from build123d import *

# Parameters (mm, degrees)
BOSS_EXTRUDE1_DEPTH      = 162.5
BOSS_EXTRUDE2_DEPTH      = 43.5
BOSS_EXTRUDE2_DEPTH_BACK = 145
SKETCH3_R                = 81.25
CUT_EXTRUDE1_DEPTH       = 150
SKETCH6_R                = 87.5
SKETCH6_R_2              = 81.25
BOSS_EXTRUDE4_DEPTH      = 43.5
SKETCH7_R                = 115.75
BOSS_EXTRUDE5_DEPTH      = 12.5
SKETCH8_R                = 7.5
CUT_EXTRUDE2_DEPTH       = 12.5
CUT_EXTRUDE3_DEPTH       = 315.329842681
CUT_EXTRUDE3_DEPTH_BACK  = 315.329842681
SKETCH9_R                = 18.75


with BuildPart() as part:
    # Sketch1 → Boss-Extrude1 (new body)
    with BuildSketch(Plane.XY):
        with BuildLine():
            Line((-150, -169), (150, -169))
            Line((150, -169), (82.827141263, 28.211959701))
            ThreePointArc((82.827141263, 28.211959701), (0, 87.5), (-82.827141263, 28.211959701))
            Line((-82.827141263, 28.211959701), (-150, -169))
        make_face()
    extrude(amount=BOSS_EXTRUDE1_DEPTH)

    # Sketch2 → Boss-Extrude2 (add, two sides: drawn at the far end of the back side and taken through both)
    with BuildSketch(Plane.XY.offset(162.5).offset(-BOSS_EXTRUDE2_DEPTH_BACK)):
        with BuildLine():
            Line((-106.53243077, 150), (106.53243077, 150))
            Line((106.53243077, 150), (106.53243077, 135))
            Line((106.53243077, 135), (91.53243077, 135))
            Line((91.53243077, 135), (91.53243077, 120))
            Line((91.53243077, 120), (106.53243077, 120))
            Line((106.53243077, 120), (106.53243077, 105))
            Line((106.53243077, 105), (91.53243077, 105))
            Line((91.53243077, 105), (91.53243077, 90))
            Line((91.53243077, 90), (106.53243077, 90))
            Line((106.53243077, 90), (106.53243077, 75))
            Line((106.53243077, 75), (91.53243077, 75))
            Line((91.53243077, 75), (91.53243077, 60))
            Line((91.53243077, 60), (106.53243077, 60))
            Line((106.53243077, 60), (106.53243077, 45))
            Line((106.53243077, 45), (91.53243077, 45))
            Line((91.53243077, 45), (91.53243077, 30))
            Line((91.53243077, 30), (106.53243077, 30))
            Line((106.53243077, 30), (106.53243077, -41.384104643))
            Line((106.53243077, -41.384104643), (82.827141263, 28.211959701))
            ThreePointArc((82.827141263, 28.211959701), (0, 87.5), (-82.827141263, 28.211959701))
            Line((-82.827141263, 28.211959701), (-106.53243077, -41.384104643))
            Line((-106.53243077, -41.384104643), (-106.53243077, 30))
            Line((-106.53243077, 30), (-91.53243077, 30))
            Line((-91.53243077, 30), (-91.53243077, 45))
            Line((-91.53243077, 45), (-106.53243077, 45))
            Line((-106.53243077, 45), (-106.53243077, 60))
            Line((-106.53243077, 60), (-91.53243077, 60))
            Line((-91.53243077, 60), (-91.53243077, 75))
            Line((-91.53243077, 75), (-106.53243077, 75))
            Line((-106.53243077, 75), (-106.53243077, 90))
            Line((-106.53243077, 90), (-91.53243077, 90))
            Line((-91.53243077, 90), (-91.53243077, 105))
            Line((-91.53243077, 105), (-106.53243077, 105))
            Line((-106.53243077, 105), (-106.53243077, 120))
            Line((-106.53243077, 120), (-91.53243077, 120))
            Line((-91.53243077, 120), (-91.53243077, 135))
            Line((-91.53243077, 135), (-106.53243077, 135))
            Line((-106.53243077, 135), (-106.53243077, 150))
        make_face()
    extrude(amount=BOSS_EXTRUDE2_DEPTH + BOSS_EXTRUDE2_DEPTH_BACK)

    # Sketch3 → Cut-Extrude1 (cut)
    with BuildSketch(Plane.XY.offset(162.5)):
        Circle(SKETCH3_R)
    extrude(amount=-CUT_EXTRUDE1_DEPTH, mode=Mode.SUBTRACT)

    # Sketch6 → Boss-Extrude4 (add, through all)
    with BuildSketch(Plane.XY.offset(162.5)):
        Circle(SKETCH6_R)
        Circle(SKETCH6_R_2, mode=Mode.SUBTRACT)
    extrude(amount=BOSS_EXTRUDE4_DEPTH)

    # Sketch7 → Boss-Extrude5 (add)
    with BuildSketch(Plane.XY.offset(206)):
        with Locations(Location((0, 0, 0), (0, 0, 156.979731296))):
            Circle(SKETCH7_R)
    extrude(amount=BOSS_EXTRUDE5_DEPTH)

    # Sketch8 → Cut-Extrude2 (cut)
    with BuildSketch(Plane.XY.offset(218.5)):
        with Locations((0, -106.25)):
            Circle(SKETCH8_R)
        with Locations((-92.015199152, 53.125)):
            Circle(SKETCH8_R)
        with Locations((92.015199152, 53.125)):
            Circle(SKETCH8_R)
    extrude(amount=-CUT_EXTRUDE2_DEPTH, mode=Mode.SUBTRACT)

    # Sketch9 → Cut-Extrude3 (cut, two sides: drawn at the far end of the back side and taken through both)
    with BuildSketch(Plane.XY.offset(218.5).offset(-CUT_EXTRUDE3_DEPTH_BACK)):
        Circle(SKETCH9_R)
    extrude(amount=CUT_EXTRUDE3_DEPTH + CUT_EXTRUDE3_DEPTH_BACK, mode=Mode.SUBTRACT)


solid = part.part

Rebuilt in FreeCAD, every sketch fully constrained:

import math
import FreeCAD as App
import Part
import Sketcher

doc = App.newDocument("Part")
params = doc.addObject("Spreadsheet::Sheet", "Params")
for row, (alias, value) in enumerate([
    ("sketch1_radius", "87.5 mm"),
    ("sketch1_width", "300 mm"),
    ("pad1_length", "162.5 mm"),
    ("sketch2_radius", "87.5 mm"),
    ("sketch2_width", "15 mm"),
    ("pad2_length", "43.5 mm"),
    ("pad2_length2", "145 mm"),
    ("sketch3_diameter", "162.5 mm"),
    ("pocket1_length", "150 mm"),
    ("sketch4_diameter", "175 mm"),
    ("sketch4_diameter2", "162.5 mm"),
    ("pad3_length", "43.5 mm"),
    ("sketch5_diameter", "231.5 mm"),
    ("pad4_length", "12.5 mm"),
    ("sketch6_diameter", "15 mm"),
    ("pocket2_length", "12.5 mm"),
    ("sketch7_diameter", "37.5 mm"),
], start=1):
    params.set(f"A{row}", alias)
    params.set(f"B{row}", "=" + value)
    params.setAlias(f"B{row}", alias)

body = doc.addObject("PartDesign::Body", "Body")

# Sketch on XY plane
sketch1 = body.newObject("Sketcher::SketchObject", "Sketch")
sketch1.AttachmentSupport = (doc.getObject("XY_Plane"), [""])
sketch1.MapMode = "FlatFace"
sketch1.addGeometry([
    Part.LineSegment(App.Vector(-150, -169, 0), App.Vector(150, -169, 0)),
    Part.LineSegment(App.Vector(150, -169, 0), App.Vector(83, 28, 0)),
    Part.ArcOfCircle(Part.Circle(App.Vector(0, 0, 0), App.Vector(0, 0, 1), 88), math.radians(19), math.radians(161)),
    Part.LineSegment(App.Vector(-83, 28, 0), App.Vector(-150, -169, 0)),
], False)
sketch1.addConstraint([
    Sketcher.Constraint("Coincident", 0, 2, 1, 1),
    Sketcher.Constraint("Tangent", 1, 2, 2, 1),
    Sketcher.Constraint("Tangent", 2, 2, 3, 1),
    Sketcher.Constraint("Coincident", 3, 2, 0, 1),
    Sketcher.Constraint("Horizontal", 0),
    Sketcher.Constraint("Coincident", 2, 3, -1, 1),
    Sketcher.Constraint("Horizontal", 1, 2, 2, 2),
    Sketcher.Constraint("Radius", 2, 87.5),
    Sketcher.Constraint("DistanceX", 0, 1, 0, 2, 300.0),
    Sketcher.Constraint("DistanceY", 0, 2, -1, 1, 169.0),
])
sketch1.setExpression("Constraints[7]", "Params.sketch1_radius")
sketch1.setExpression("Constraints[8]", "Params.sketch1_width")
pad1 = body.newObject("PartDesign::Pad", "Pad")
pad1.Profile = sketch1
pad1.setExpression("Length", "Params.pad1_length")

# Sketch on XY plane
sketch2 = body.newObject("Sketcher::SketchObject", "Sketch001")
sketch2.AttachmentSupport = (doc.getObject("XY_Plane"), [""])
sketch2.MapMode = "FlatFace"
sketch2.AttachmentOffset = App.Placement(App.Vector(0, 0, 162.5), App.Rotation())
sketch2.addGeometry([
    Part.LineSegment(App.Vector(107, 150, 0), App.Vector(-107, 150, 0)),  # 0
    Part.LineSegment(App.Vector(-107, 150, 0), App.Vector(-107, 135, 0)),  # 1
    Part.LineSegment(App.Vector(-107, 135, 0), App.Vector(-92, 135, 0)),  # 2
    Part.LineSegment(App.Vector(-92, 135, 0), App.Vector(-92, 120, 0)),  # 3
    Part.LineSegment(App.Vector(-92, 120, 0), App.Vector(-107, 120, 0)),  # 4
    Part.LineSegment(App.Vector(-107, 120, 0), App.Vector(-107, 105, 0)),  # 5
    Part.LineSegment(App.Vector(-107, 105, 0), App.Vector(-92, 105, 0)),  # 6
    Part.LineSegment(App.Vector(-92, 105, 0), App.Vector(-92, 90, 0)),  # 7
    Part.LineSegment(App.Vector(-92, 90, 0), App.Vector(-107, 90, 0)),  # 8
    Part.LineSegment(App.Vector(-107, 90, 0), App.Vector(-107, 75, 0)),  # 9
    Part.LineSegment(App.Vector(-107, 75, 0), App.Vector(-92, 75, 0)),  # 10
    Part.LineSegment(App.Vector(-92, 75, 0), App.Vector(-92, 60, 0)),  # 11
    Part.LineSegment(App.Vector(-92, 60, 0), App.Vector(-107, 60, 0)),  # 12
    Part.LineSegment(App.Vector(-107, 60, 0), App.Vector(-107, 45, 0)),  # 13
    Part.LineSegment(App.Vector(-107, 45, 0), App.Vector(-92, 45, 0)),  # 14
    Part.LineSegment(App.Vector(-92, 45, 0), App.Vector(-92, 30, 0)),  # 15
    Part.LineSegment(App.Vector(-92, 30, 0), App.Vector(-107, 30, 0)),  # 16
    Part.LineSegment(App.Vector(-107, 30, 0), App.Vector(-107, -41, 0)),  # 17
    Part.LineSegment(App.Vector(-107, -41, 0), App.Vector(-83, 28, 0)),  # 18
    Part.ArcOfCircle(Part.Circle(App.Vector(0, 0, 0), App.Vector(0, 0, 1), 88), math.radians(19), math.radians(161)),  # 19
    Part.LineSegment(App.Vector(83, 28, 0), App.Vector(107, -41, 0)),  # 20
    Part.LineSegment(App.Vector(107, -41, 0), App.Vector(107, 30, 0)),  # 21
    Part.LineSegment(App.Vector(107, 30, 0), App.Vector(92, 30, 0)),  # 22
    Part.LineSegment(App.Vector(92, 30, 0), App.Vector(92, 45, 0)),  # 23
    Part.LineSegment(App.Vector(92, 45, 0), App.Vector(107, 45, 0)),  # 24
    Part.LineSegment(App.Vector(107, 45, 0), App.Vector(107, 60, 0)),  # 25
    Part.LineSegment(App.Vector(107, 60, 0), App.Vector(92, 60, 0)),  # 26
    Part.LineSegment(App.Vector(92, 60, 0), App.Vector(92, 75, 0)),  # 27
    Part.LineSegment(App.Vector(92, 75, 0), App.Vector(107, 75, 0)),  # 28
    Part.LineSegment(App.Vector(107, 75, 0), App.Vector(107, 90, 0)),  # 29
    Part.LineSegment(App.Vector(107, 90, 0), App.Vector(92, 90, 0)),  # 30
    Part.LineSegment(App.Vector(92, 90, 0), App.Vector(92, 105, 0)),  # 31
    Part.LineSegment(App.Vector(92, 105, 0), App.Vector(107, 105, 0)),  # 32
    Part.LineSegment(App.Vector(107, 105, 0), App.Vector(107, 120, 0)),  # 33
    Part.LineSegment(App.Vector(107, 120, 0), App.Vector(92, 120, 0)),  # 34
    Part.LineSegment(App.Vector(92, 120, 0), App.Vector(92, 135, 0)),  # 35
    Part.LineSegment(App.Vector(92, 135, 0), App.Vector(107, 135, 0)),  # 36
    Part.LineSegment(App.Vector(107, 135, 0), App.Vector(107, 150, 0)),  # 37
], False)
sketch2.addConstraint([
    Sketcher.Constraint("Coincident", 0, 2, 1, 1),
    Sketcher.Constraint("Coincident", 1, 2, 2, 1),
    Sketcher.Constraint("Coincident", 2, 2, 3, 1),
    Sketcher.Constraint("Coincident", 3, 2, 4, 1),
    Sketcher.Constraint("Coincident", 4, 2, 5, 1),
    Sketcher.Constraint("Coincident", 5, 2, 6, 1),
    Sketcher.Constraint("Coincident", 6, 2, 7, 1),
    Sketcher.Constraint("Coincident", 7, 2, 8, 1),
    Sketcher.Constraint("Coincident", 8, 2, 9, 1),
    Sketcher.Constraint("Coincident", 9, 2, 10, 1),
    Sketcher.Constraint("Coincident", 10, 2, 11, 1),
    Sketcher.Constraint("Coincident", 11, 2, 12, 1),
    Sketcher.Constraint("Coincident", 12, 2, 13, 1),
    Sketcher.Constraint("Coincident", 13, 2, 14, 1),
    Sketcher.Constraint("Coincident", 14, 2, 15, 1),
    Sketcher.Constraint("Coincident", 15, 2, 16, 1),
    Sketcher.Constraint("Coincident", 16, 2, 17, 1),
    Sketcher.Constraint("Coincident", 17, 2, 18, 1),
    Sketcher.Constraint("Tangent", 18, 2, 19, 2),
    Sketcher.Constraint("Tangent", 19, 1, 20, 1),
    Sketcher.Constraint("Coincident", 20, 2, 21, 1),
    Sketcher.Constraint("Coincident", 21, 2, 22, 1),
    Sketcher.Constraint("Coincident", 22, 2, 23, 1),
    Sketcher.Constraint("Coincident", 23, 2, 24, 1),
    Sketcher.Constraint("Coincident", 24, 2, 25, 1),
    Sketcher.Constraint("Coincident", 25, 2, 26, 1),
    Sketcher.Constraint("Coincident", 26, 2, 27, 1),
    Sketcher.Constraint("Coincident", 27, 2, 28, 1),
    Sketcher.Constraint("Coincident", 28, 2, 29, 1),
    Sketcher.Constraint("Coincident", 29, 2, 30, 1),
    Sketcher.Constraint("Coincident", 30, 2, 31, 1),
    Sketcher.Constraint("Coincident", 31, 2, 32, 1),
    Sketcher.Constraint("Coincident", 32, 2, 33, 1),
    Sketcher.Constraint("Coincident", 33, 2, 34, 1),
    Sketcher.Constraint("Coincident", 34, 2, 35, 1),
    Sketcher.Constraint("Coincident", 35, 2, 36, 1),
    Sketcher.Constraint("Coincident", 36, 2, 37, 1),
    Sketcher.Constraint("Coincident", 37, 2, 0, 1),
    Sketcher.Constraint("Horizontal", 0),
    Sketcher.Constraint("Vertical", 1),
    Sketcher.Constraint("Horizontal", 2),
    Sketcher.Constraint("Vertical", 3),
    Sketcher.Constraint("Horizontal", 4),
    Sketcher.Constraint("Vertical", 5),
    Sketcher.Constraint("Horizontal", 6),
    Sketcher.Constraint("Vertical", 7),
    Sketcher.Constraint("Horizontal", 8),
    Sketcher.Constraint("Vertical", 9),
    Sketcher.Constraint("Horizontal", 10),
    Sketcher.Constraint("Vertical", 11),
    Sketcher.Constraint("Horizontal", 12),
    Sketcher.Constraint("Vertical", 13),
    Sketcher.Constraint("Horizontal", 14),
    Sketcher.Constraint("Vertical", 15),
    Sketcher.Constraint("Horizontal", 16),
    Sketcher.Constraint("Vertical", 17),
    Sketcher.Constraint("Vertical", 21),
    Sketcher.Constraint("Horizontal", 22),
    Sketcher.Constraint("Vertical", 23),
    Sketcher.Constraint("Horizontal", 24),
    Sketcher.Constraint("Vertical", 25),
    Sketcher.Constraint("Horizontal", 26),
    Sketcher.Constraint("Vertical", 27),
    Sketcher.Constraint("Horizontal", 28),
    Sketcher.Constraint("Vertical", 29),
    Sketcher.Constraint("Horizontal", 30),
    Sketcher.Constraint("Vertical", 31),
    Sketcher.Constraint("Horizontal", 32),
    Sketcher.Constraint("Vertical", 33),
    Sketcher.Constraint("Horizontal", 34),
    Sketcher.Constraint("Vertical", 35),
    Sketcher.Constraint("Horizontal", 36),
    Sketcher.Constraint("Vertical", 37),
    Sketcher.Constraint("Coincident", 19, 3, -1, 1),
    Sketcher.Constraint("Symmetric", 17, 2, 20, 2, -2),
    Sketcher.Constraint("Symmetric", 15, 2, 22, 2, -2),
    Sketcher.Constraint("Symmetric", 13, 2, 24, 2, -2),
    Sketcher.Constraint("Symmetric", 11, 2, 26, 2, -2),
    Sketcher.Constraint("Symmetric", 9, 2, 28, 2, -2),
    Sketcher.Constraint("Symmetric", 7, 2, 30, 2, -2),
    Sketcher.Constraint("Symmetric", 5, 2, 32, 2, -2),
    Sketcher.Constraint("Symmetric", 3, 2, 34, 2, -2),
    Sketcher.Constraint("Symmetric", 1, 2, 36, 2, -2),
    Sketcher.Constraint("Vertical", 1, 2, 4, 2),
    Sketcher.Constraint("Vertical", 3, 2, 6, 2),
    Sketcher.Constraint("Vertical", 5, 2, 8, 2),
    Sketcher.Constraint("Vertical", 7, 2, 10, 2),
    Sketcher.Constraint("Vertical", 9, 2, 12, 2),
    Sketcher.Constraint("Vertical", 11, 2, 14, 2),
    Sketcher.Constraint("Vertical", 13, 2, 16, 2),
    Sketcher.Constraint("Equal", 36, 1),
    Sketcher.Constraint("Equal", 1, 3),
    Sketcher.Constraint("Equal", 3, 5),
    Sketcher.Constraint("Equal", 5, 7),
    Sketcher.Constraint("Equal", 7, 9),
    Sketcher.Constraint("Equal", 9, 11),
    Sketcher.Constraint("Equal", 11, 13),
    Sketcher.Constraint("Equal", 13, 15),
    Sketcher.Constraint("Radius", 19, 87.5),
    Sketcher.Constraint("DistanceX", 2, 1, 2, 2, 15.0),
    Sketcher.Constraint("DistanceY", -1, 1, 0, 2, 150.0),
    Sketcher.Constraint("DistanceX", 0, 2, 0, 1, 213.064862),
    Sketcher.Constraint("DistanceY", 17, 2, 17, 1, 71.384105),
])
sketch2.setExpression("Constraints[98]", "Params.sketch2_radius")
sketch2.setExpression("Constraints[99]", "Params.sketch2_width")
pad2 = body.newObject("PartDesign::Pad", "Pad001")
pad2.Profile = sketch2
pad2.Type = "TwoLengths"
pad2.setExpression("Length", "Params.pad2_length")
pad2.setExpression("Length2", "Params.pad2_length2")

# Sketch on XY plane
sketch3 = body.newObject("Sketcher::SketchObject", "Sketch002")
sketch3.AttachmentSupport = (doc.getObject("XY_Plane"), [""])
sketch3.MapMode = "FlatFace"
sketch3.AttachmentOffset = App.Placement(App.Vector(0, 0, 162.5), App.Rotation())
sketch3.addGeometry(Part.Circle(App.Vector(0, 0, 0), App.Vector(0, 0, 1), 81), False)
sketch3.addConstraint([
    Sketcher.Constraint("Coincident", 0, 3, -1, 1),
    Sketcher.Constraint("Diameter", 0, 162.5),
])
sketch3.setExpression("Constraints[1]", "Params.sketch3_diameter")
pocket1 = body.newObject("PartDesign::Pocket", "Pocket")
pocket1.Profile = sketch3
pocket1.setExpression("Length", "Params.pocket1_length")

# Sketch on XY plane
sketch4 = body.newObject("Sketcher::SketchObject", "Sketch003")
sketch4.AttachmentSupport = (doc.getObject("XY_Plane"), [""])
sketch4.MapMode = "FlatFace"
sketch4.AttachmentOffset = App.Placement(App.Vector(0, 0, 162.5), App.Rotation())
sketch4.addGeometry([
    Part.Circle(App.Vector(0, 0, 0), App.Vector(0, 0, 1), 88),
    Part.Circle(App.Vector(0, 0, 0), App.Vector(0, 0, 1), 81),
], False)
sketch4.addConstraint([
    Sketcher.Constraint("Coincident", 0, 3, -1, 1),
    Sketcher.Constraint("Coincident", 1, 3, -1, 1),
    Sketcher.Constraint("Diameter", 0, 175.0),
    Sketcher.Constraint("Diameter", 1, 162.5),
])
sketch4.setExpression("Constraints[2]", "Params.sketch4_diameter")
sketch4.setExpression("Constraints[3]", "Params.sketch4_diameter2")
pad3 = body.newObject("PartDesign::Pad", "Pad002")
pad3.Profile = sketch4
pad3.setExpression("Length", "Params.pad3_length")

# Sketch on XY plane
sketch5 = body.newObject("Sketcher::SketchObject", "Sketch004")
sketch5.AttachmentSupport = (doc.getObject("XY_Plane"), [""])
sketch5.MapMode = "FlatFace"
sketch5.AttachmentOffset = App.Placement(App.Vector(0, 0, 206), App.Rotation())
sketch5.addGeometry(Part.Circle(App.Vector(0, 0, 0), App.Vector(0, 0, 1), 116), False)
sketch5.addConstraint([
    Sketcher.Constraint("Coincident", 0, 3, -1, 1),
    Sketcher.Constraint("Diameter", 0, 231.5),
])
sketch5.setExpression("Constraints[1]", "Params.sketch5_diameter")
pad4 = body.newObject("PartDesign::Pad", "Pad003")
pad4.Profile = sketch5
pad4.setExpression("Length", "Params.pad4_length")

# Sketch on XY plane
sketch6 = body.newObject("Sketcher::SketchObject", "Sketch005")
sketch6.AttachmentSupport = (doc.getObject("XY_Plane"), [""])
sketch6.MapMode = "FlatFace"
sketch6.AttachmentOffset = App.Placement(App.Vector(0, 0, 218.5), App.Rotation())
sketch6.addGeometry([
    Part.Circle(App.Vector(0, -106, 0), App.Vector(0, 0, 1), 8),
    Part.Circle(App.Vector(-92, 53, 0), App.Vector(0, 0, 1), 8),
    Part.Circle(App.Vector(92, 53, 0), App.Vector(0, 0, 1), 8),
], False)
sketch6.addConstraint([
    Sketcher.Constraint("Equal", 0, 1),
    Sketcher.Constraint("Equal", 1, 2),
    Sketcher.Constraint("Symmetric", 1, 3, 2, 3, -2),
    Sketcher.Constraint("PointOnObject", 0, 3, -2),
    Sketcher.Constraint("Diameter", 0, 15.0),
    Sketcher.Constraint("DistanceY", 0, 3, -1, 1, 106.25),
    Sketcher.Constraint("DistanceY", -1, 1, 1, 3, 53.125),
    Sketcher.Constraint("DistanceX", 1, 3, -1, 1, 92.015199),
])
sketch6.setExpression("Constraints[4]", "Params.sketch6_diameter")
pocket2 = body.newObject("PartDesign::Pocket", "Pocket001")
pocket2.Profile = sketch6
pocket2.setExpression("Length", "Params.pocket2_length")

# Sketch on XY plane
sketch7 = body.newObject("Sketcher::SketchObject", "Sketch006")
sketch7.AttachmentSupport = (doc.getObject("XY_Plane"), [""])
sketch7.MapMode = "FlatFace"
sketch7.AttachmentOffset = App.Placement(App.Vector(0, 0, 218.5), App.Rotation())
sketch7.addGeometry(Part.Circle(App.Vector(0, 0, 0), App.Vector(0, 0, 1), 19), False)
sketch7.addConstraint([
    Sketcher.Constraint("Coincident", 0, 3, -1, 1),
    Sketcher.Constraint("Diameter", 0, 37.5),
])
sketch7.setExpression("Constraints[1]", "Params.sketch7_diameter")
pocket3 = body.newObject("PartDesign::Pocket", "Pocket002")
pocket3.Profile = sketch7
pocket3.Type = "ThroughAll"
pocket3.Midplane = True

doc.recompute()
